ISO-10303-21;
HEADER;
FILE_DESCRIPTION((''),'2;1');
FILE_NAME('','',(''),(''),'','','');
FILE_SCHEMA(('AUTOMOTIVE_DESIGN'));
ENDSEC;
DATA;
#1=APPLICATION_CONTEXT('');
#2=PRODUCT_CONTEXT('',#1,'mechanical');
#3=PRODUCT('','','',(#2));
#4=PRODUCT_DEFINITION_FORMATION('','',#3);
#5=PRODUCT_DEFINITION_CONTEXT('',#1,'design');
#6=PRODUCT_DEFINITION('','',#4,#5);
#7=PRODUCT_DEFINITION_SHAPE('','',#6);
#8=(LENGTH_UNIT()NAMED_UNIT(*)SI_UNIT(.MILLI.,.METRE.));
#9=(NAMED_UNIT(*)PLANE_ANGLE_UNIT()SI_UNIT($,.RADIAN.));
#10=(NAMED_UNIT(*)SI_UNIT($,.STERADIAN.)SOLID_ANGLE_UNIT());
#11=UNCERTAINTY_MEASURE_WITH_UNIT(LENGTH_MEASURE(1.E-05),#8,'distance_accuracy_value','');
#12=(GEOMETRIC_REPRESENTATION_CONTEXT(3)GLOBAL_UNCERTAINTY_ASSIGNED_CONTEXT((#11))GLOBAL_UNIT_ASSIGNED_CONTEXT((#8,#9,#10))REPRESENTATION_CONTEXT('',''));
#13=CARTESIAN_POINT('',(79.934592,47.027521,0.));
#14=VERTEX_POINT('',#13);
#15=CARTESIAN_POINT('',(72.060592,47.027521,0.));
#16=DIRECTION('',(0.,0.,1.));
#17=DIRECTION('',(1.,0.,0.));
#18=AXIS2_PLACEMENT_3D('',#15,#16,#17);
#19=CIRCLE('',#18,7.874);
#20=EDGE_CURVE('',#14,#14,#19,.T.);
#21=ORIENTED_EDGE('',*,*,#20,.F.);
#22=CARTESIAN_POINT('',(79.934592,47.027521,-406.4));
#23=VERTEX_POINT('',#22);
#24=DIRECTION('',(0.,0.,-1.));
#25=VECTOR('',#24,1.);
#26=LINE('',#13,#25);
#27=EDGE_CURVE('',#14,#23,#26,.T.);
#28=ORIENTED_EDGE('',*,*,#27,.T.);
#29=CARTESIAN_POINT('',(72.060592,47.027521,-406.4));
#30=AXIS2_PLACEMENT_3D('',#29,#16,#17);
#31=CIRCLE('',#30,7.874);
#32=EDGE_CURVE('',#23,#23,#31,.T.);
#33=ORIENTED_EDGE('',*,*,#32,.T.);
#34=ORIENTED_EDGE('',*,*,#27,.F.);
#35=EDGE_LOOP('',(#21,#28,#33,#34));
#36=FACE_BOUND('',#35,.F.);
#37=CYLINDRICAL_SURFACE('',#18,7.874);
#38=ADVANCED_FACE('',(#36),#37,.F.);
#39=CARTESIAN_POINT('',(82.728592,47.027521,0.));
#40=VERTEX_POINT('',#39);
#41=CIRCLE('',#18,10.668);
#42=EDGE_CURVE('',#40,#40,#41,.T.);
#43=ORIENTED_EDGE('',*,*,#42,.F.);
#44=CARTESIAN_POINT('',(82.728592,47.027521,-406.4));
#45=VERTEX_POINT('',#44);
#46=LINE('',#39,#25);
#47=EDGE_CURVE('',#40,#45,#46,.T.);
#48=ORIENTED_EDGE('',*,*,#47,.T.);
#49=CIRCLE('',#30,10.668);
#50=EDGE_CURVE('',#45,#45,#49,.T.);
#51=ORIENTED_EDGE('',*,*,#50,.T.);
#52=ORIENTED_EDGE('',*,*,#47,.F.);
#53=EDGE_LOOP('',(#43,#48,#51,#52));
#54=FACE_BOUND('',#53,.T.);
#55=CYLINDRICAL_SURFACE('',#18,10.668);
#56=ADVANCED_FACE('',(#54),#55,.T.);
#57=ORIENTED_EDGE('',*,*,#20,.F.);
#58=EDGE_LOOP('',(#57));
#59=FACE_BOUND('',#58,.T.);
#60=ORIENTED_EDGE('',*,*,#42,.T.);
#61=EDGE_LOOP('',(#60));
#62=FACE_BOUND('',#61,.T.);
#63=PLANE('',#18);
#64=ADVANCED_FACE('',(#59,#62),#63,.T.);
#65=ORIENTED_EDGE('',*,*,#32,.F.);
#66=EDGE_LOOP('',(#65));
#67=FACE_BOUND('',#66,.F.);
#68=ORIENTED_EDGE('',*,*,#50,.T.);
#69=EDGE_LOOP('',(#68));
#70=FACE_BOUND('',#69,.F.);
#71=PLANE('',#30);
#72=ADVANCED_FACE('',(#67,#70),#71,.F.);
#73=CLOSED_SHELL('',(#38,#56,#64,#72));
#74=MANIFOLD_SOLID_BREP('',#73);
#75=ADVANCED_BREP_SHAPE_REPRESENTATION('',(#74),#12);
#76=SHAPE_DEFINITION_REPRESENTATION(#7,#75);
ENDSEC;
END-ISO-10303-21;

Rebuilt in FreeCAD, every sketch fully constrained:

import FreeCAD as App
import Part
import Sketcher

V = App.Vector
Q = App.Units.Quantity

doc = App.newDocument("Part")
body = doc.addObject("PartDesign::Body", "Body")

sketch1 = body.newObject("Sketcher::SketchObject", "Sketch")
sketch1.AttachmentSupport = (doc.getObject("XY_Plane"), [""])
sketch1.MapMode = "FlatFace"
sketch1.addGeometry(Part.Circle(V(72, 47, 0), V(0, 0, 1), 11), False)
sketch1.addGeometry(Part.Circle(V(72, 47, 0), V(0, 0, 1), 8), False)
sketch1.addConstraint(Sketcher.Constraint("Coincident", 1, 3, 0, 3))
sketch1.addConstraint(Sketcher.Constraint("Diameter", 0, Q("0.84 in")))
sketch1.addConstraint(Sketcher.Constraint("Diameter", 1, Q("0.62 in")))
sketch1.addConstraint(Sketcher.Constraint("DistanceX", -1, 1, 0, 3, Q("72.060592 mm")))
sketch1.addConstraint(Sketcher.Constraint("DistanceY", -1, 1, 0, 3, Q("47.027521 mm")))
pad1 = body.newObject("PartDesign::Pad", "Pad")
pad1.Profile = sketch1
pad1.Length = Q("16 in")
pad1.Reversed = True

doc.recompute()
